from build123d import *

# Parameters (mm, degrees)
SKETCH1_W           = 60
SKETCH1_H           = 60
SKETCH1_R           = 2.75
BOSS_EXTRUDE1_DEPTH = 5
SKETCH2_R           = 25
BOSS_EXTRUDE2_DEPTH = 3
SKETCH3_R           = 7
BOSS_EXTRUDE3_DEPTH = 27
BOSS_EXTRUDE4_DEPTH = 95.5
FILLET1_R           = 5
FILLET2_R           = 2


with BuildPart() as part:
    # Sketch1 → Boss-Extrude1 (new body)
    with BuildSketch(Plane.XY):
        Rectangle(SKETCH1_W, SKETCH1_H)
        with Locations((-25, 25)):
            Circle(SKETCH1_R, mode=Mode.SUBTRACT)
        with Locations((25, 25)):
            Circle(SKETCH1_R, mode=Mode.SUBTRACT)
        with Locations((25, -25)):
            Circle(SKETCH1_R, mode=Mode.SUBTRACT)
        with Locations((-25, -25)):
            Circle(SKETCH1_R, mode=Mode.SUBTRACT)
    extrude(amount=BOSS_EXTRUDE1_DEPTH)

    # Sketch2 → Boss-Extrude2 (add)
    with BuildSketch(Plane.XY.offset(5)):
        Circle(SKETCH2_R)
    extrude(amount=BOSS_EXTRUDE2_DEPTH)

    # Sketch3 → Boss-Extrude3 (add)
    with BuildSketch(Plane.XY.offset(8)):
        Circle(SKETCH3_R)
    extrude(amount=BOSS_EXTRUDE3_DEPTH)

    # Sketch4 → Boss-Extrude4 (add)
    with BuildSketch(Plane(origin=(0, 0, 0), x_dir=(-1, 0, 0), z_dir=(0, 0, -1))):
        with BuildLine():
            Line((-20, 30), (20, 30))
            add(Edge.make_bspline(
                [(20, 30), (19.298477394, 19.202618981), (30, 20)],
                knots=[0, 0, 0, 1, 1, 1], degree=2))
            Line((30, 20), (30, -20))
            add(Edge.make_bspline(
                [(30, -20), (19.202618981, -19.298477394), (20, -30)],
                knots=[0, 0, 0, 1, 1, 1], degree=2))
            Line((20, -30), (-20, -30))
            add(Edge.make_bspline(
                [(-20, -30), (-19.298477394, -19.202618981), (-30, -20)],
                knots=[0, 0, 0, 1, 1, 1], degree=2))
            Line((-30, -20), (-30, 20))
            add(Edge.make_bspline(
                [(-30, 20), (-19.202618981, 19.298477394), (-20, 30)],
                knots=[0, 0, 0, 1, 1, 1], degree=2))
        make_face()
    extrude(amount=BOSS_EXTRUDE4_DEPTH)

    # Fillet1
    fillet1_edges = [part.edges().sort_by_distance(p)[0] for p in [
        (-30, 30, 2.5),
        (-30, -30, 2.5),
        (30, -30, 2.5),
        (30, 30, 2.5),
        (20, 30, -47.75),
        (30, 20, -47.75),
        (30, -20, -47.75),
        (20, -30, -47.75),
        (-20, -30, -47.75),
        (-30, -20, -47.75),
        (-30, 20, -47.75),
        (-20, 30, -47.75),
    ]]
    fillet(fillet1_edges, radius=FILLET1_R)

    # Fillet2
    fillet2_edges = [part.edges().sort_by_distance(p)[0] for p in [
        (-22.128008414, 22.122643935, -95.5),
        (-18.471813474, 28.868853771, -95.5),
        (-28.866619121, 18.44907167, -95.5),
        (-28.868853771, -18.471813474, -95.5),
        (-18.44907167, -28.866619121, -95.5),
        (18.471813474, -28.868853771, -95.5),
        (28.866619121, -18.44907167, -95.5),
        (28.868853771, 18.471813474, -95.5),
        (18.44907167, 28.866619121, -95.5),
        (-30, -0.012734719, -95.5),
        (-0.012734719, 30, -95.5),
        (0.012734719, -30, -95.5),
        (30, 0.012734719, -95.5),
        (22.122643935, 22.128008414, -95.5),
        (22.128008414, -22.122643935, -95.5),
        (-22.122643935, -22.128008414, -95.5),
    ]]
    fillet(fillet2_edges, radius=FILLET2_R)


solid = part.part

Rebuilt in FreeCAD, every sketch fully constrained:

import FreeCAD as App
import Part
import Sketcher
from FreeCAD import Vector
Q = App.Units.Quantity


def edges_at(feature, points):
    """Names of the edges that pass closest to the given points."""
    edges = feature.Shape.Edges
    near = lambda p: min(range(len(edges)), key=lambda i: edges[i].distToShape(Part.Vertex(*p))[0])
    return sorted({f"Edge{near(p) + 1}" for p in points})

doc = App.newDocument("Part")
params = doc.addObject("Spreadsheet::Sheet", "Params")
for row, (alias, value) in enumerate([
    ("sketch1_diameter", "5.5 mm"),
    ("sketch1_width", "60 mm"),
    ("pad1_length", "5 mm"),
    ("sketch2_diameter", "50 mm"),
    ("pad2_length", "3 mm"),
    ("sketch3_diameter", "14 mm"),
    ("pad3_length", "27 mm"),
    ("pad4_length", "95.5 mm"),
    ("fillet_radius", "5 mm"),
    ("fillet2_radius", "2 mm"),
], start=1):
    params.set(f"A{row}", alias)
    params.set(f"B{row}", "=" + value)
    params.setAlias(f"B{row}", alias)

body = doc.addObject("PartDesign::Body", "Body")

sketch1 = body.newObject("Sketcher::SketchObject", "Sketch")
sketch1.AttachmentSupport = (doc.getObject("XY_Plane"), [""])
sketch1.MapMode = "FlatFace"
sketch1.addGeometry([
    Part.LineSegment(Vector(-30, 30, 0), Vector(-30, -30, 0)),
    Part.LineSegment(Vector(-30, -30, 0), Vector(30, -30, 0)),
    Part.LineSegment(Vector(30, -30, 0), Vector(30, 30, 0)),
    Part.LineSegment(Vector(30, 30, 0), Vector(-30, 30, 0)),
    Part.Circle(Vector(-25, -25, 0), Vector(0, 0, 1), 2.75),
    Part.Circle(Vector(25, -25, 0), Vector(0, 0, 1), 2.75),
    Part.Circle(Vector(-25, 25, 0), Vector(0, 0, 1), 2.75),
    Part.Circle(Vector(25, 25, 0), Vector(0, 0, 1), 2.75),
], False)
sketch1.addConstraint([
    Sketcher.Constraint("Coincident", 0, 2, 1, 1),
    Sketcher.Constraint("Coincident", 1, 2, 2, 1),
    Sketcher.Constraint("Coincident", 2, 2, 3, 1),
    Sketcher.Constraint("Coincident", 3, 2, 0, 1),
    Sketcher.Constraint("Vertical", 0),
    Sketcher.Constraint("Horizontal", 1),
    Sketcher.Constraint("Vertical", 2),
    Sketcher.Constraint("Horizontal", 3),
    Sketcher.Constraint("Equal", 4, 5),
    Sketcher.Constraint("Equal", 5, 6),
    Sketcher.Constraint("Equal", 6, 7),
    Sketcher.Constraint("Symmetric", 5, 3, 6, 3, -1, 1),
    Sketcher.Constraint("Symmetric", 4, 3, 7, 3, -1, 1),
    Sketcher.Constraint("Symmetric", 0, 2, 2, 2, -1, 1),
    Sketcher.Constraint("Symmetric", 4, 3, 5, 3, -2),
    Sketcher.Constraint("Equal", 3, 0),
    Sketcher.Constraint("Diameter", 4, Q("5.5 mm")),
    Sketcher.Constraint("DistanceX", 1, 1, 1, 2, Q("60 mm")),
    Sketcher.Constraint("DistanceX", 4, 3, -1, 1, Q("25 mm")),
    Sketcher.Constraint("DistanceY", 4, 3, -1, 1, Q("25 mm")),
])
sketch1.setExpression("Constraints[16]", "Params.sketch1_diameter")
sketch1.setExpression("Constraints[17]", "Params.sketch1_width")
pad1 = body.newObject("PartDesign::Pad", "Pad")
pad1.Profile = sketch1
pad1.setExpression("Length", "Params.pad1_length")

sketch2 = body.newObject("Sketcher::SketchObject", "Sketch001")
sketch2.AttachmentSupport = (doc.getObject("XY_Plane"), [""])
sketch2.MapMode = "FlatFace"
sketch2.AttachmentOffset = App.Placement(Vector(0, 0, 5), App.Rotation())
sketch2.addGeometry(Part.Circle(Vector(0, 0, 0), Vector(0, 0, 1), 25), False)
sketch2.addConstraint([
    Sketcher.Constraint("Coincident", 0, 3, -1, 1),
    Sketcher.Constraint("Diameter", 0, Q("50 mm")),
])
sketch2.setExpression("Constraints[1]", "Params.sketch2_diameter")
pad2 = body.newObject("PartDesign::Pad", "Pad001")
pad2.Profile = sketch2
pad2.setExpression("Length", "Params.pad2_length")

sketch3 = body.newObject("Sketcher::SketchObject", "Sketch002")
sketch3.AttachmentSupport = (doc.getObject("XY_Plane"), [""])
sketch3.MapMode = "FlatFace"
sketch3.AttachmentOffset = App.Placement(Vector(0, 0, 8), App.Rotation())
sketch3.addGeometry(Part.Circle(Vector(0, 0, 0), Vector(0, 0, 1), 7), False)
sketch3.addConstraint([
    Sketcher.Constraint("Coincident", 0, 3, -1, 1),
    Sketcher.Constraint("Diameter", 0, Q("14 mm")),
])
sketch3.setExpression("Constraints[1]", "Params.sketch3_diameter")
pad3 = body.newObject("PartDesign::Pad", "Pad002")
pad3.Profile = sketch3
pad3.setExpression("Length", "Params.pad3_length")

sketch4 = body.newObject("Sketcher::SketchObject", "Sketch003")
sketch4.AttachmentSupport = (doc.getObject("XY_Plane"), [""])
sketch4.MapMode = "FlatFace"
sketch4.addGeometry([
    Part.LineSegment(Vector(-20, 30, 0), Vector(20, 30, 0)),
    Part.BSplineCurve([Vector(30, 20, 0), Vector(19.202619, 19.298477, 0), Vector(20, 30, 0)], [3, 3], [0, 1], False, 2, [1, 1, 1], False),
    Part.LineSegment(Vector(30, 20, 0), Vector(30, -20, 0)),
    Part.BSplineCurve([Vector(20, -30, 0), Vector(19.298477, -19.202619, 0), Vector(30, -20, 0)], [3, 3], [0, 1], False, 2, [1, 1, 1], False),
    Part.LineSegment(Vector(20, -30, 0), Vector(-20, -30, 0)),
    Part.BSplineCurve([Vector(-30, -20, 0), Vector(-19.202619, -19.298477, 0), Vector(-20, -30, 0)], [3, 3], [0, 1], False, 2, [1, 1, 1], False),
    Part.LineSegment(Vector(-30, -20, 0), Vector(-30, 20, 0)),
    Part.BSplineCurve([Vector(-20, 30, 0), Vector(-19.298477, 19.202619, 0), Vector(-30, 20, 0)], [3, 3], [0, 1], False, 2, [1, 1, 1], False),
], False)
sketch4.addConstraint([
    Sketcher.Constraint("Block", 1),
    Sketcher.Constraint("Block", 3),
    Sketcher.Constraint("Block", 5),
    Sketcher.Constraint("Block", 7),
    Sketcher.Constraint("Coincident", 0, 2, 1, 2),
    Sketcher.Constraint("Coincident", 1, 1, 2, 1),
    Sketcher.Constraint("Coincident", 2, 2, 3, 2),
    Sketcher.Constraint("Coincident", 3, 1, 4, 1),
    Sketcher.Constraint("Coincident", 4, 2, 5, 2),
    Sketcher.Constraint("Coincident", 5, 1, 6, 1),
    Sketcher.Constraint("Coincident", 6, 2, 7, 2),
    Sketcher.Constraint("Coincident", 7, 1, 0, 1),
])
pad4 = body.newObject("PartDesign::Pad", "Pad003")
pad4.Profile = sketch4
pad4.setExpression("Length", "Params.pad4_length")
pad4.Reversed = True
doc.recompute()

fillet = body.newObject("PartDesign::Fillet", "Fillet")
fillet.Base = (pad4, edges_at(pad4, [
    (-30, 30, 2.5),
    (-30, -30, 2.5),
    (30, -30, 2.5),
    (30, 30, 2.5),
    (20, 30, -47.75),
    (30, 20, -47.75),
    (30, -20, -47.75),
    (20, -30, -47.75),
    (-20, -30, -47.75),
    (-30, -20, -47.75),
    (-30, 20, -47.75),
    (-20, 30, -47.75),
]))
fillet.setExpression("Radius", "Params.fillet_radius")
doc.recompute()

fillet2 = body.newObject("PartDesign::Fillet", "Fillet001")
fillet2.Base = (fillet, edges_at(fillet, [
    (-22.128, 22.123, -95.5),
    (-18.472, 28.869, -95.5),
    (-28.867, 18.449, -95.5),
    (-28.869, -18.472, -95.5),
    (-18.449, -28.867, -95.5),
    (18.472, -28.869, -95.5),
    (28.867, -18.449, -95.5),
    (28.869, 18.472, -95.5),
    (18.449, 28.867, -95.5),
    (-30, -0.013, -95.5),
    (-0.013, 30, -95.5),
    (0.013, -30, -95.5),
    (30, 0.013, -95.5),
    (22.123, 22.128, -95.5),
    (22.128, -22.123, -95.5),
    (-22.123, -22.128, -95.5),
]))
fillet2.setExpression("Radius", "Params.fillet2_radius")

doc.recompute()
